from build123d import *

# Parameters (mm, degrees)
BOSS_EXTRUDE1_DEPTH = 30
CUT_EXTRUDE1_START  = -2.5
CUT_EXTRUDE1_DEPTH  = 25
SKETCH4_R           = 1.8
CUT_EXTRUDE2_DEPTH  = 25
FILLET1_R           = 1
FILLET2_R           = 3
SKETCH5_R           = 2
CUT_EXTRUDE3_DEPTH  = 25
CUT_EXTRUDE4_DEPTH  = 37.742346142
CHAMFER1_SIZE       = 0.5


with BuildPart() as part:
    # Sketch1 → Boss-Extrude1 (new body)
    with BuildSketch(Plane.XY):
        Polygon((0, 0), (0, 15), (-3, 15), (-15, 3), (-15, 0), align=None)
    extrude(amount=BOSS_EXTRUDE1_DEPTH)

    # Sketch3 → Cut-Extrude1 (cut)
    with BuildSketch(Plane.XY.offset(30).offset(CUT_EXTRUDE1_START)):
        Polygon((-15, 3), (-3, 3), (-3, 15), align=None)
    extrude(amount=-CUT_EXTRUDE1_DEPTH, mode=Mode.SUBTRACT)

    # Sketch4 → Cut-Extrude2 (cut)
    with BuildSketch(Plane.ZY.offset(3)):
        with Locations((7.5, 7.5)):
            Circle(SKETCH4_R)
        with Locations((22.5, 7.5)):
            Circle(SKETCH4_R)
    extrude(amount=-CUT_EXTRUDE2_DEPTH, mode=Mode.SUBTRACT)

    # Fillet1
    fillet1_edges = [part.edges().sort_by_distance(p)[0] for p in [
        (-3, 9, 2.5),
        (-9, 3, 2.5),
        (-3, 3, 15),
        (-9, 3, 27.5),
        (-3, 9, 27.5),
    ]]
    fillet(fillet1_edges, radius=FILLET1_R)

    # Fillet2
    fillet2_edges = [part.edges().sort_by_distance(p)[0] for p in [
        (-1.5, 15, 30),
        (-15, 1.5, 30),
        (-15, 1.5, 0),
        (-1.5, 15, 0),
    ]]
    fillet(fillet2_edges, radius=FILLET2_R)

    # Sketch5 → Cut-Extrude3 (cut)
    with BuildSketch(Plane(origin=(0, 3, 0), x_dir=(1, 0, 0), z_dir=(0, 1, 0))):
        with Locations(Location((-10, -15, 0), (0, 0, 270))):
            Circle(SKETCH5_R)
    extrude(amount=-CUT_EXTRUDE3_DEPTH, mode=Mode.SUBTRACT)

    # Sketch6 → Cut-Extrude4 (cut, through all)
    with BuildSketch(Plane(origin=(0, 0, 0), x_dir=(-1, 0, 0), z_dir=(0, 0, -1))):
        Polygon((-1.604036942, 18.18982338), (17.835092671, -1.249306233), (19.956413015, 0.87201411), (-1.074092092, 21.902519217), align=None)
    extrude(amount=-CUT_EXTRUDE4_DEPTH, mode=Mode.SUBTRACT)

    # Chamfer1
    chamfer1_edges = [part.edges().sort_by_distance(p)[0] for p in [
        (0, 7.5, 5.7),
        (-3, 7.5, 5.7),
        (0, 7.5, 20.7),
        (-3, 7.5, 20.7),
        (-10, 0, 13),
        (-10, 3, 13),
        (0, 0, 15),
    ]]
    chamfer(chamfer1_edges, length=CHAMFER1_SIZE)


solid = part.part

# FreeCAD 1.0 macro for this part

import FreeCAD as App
import Part
import Sketcher

V = App.Vector
Q = App.Units.Quantity


def edges_at(feature, points):
    """Names of the edges that pass closest to the given points."""
    edges = feature.Shape.Edges
    near = lambda p: min(range(len(edges)), key=lambda i: edges[i].distToShape(Part.Vertex(*p))[0])
    return sorted({f"Edge{near(p) + 1}" for p in points})

doc = App.newDocument("Part")
body = doc.addObject("PartDesign::Body", "Body")

sketch1 = body.newObject("Sketcher::SketchObject", "Sketch")
sketch1.AttachmentSupport = (doc.getObject("XY_Plane"), [""])
sketch1.MapMode = "FlatFace"
sketch1.addGeometry(Part.LineSegment(V(0, 0, 0), V(0, 15, 0)), False)
sketch1.addGeometry(Part.LineSegment(V(0, 15, 0), V(-3, 15, 0)), False)
sketch1.addGeometry(Part.LineSegment(V(-3, 15, 0), V(-15, 3, 0)), False)
sketch1.addGeometry(Part.LineSegment(V(-15, 3, 0), V(-15, 0, 0)), False)
sketch1.addGeometry(Part.LineSegment(V(-15, 0, 0), V(0, 0, 0)), False)
sketch1.addConstraint(Sketcher.Constraint("Coincident", 0, 2, 1, 1))
sketch1.addConstraint(Sketcher.Constraint("Coincident", 1, 2, 2, 1))
sketch1.addConstraint(Sketcher.Constraint("Coincident", 2, 2, 3, 1))
sketch1.addConstraint(Sketcher.Constraint("Coincident", 3, 2, 4, 1))
sketch1.addConstraint(Sketcher.Constraint("Coincident", 4, 2, 0, 1))
sketch1.addConstraint(Sketcher.Constraint("Vertical", 0))
sketch1.addConstraint(Sketcher.Constraint("Horizontal", 1))
sketch1.addConstraint(Sketcher.Constraint("Vertical", 3))
sketch1.addConstraint(Sketcher.Constraint("Horizontal", 4))
sketch1.addConstraint(Sketcher.Constraint("Coincident", 4, 2, -1, 1))
sketch1.addConstraint(Sketcher.Constraint("Equal", 4, 0))
sketch1.addConstraint(Sketcher.Constraint("Equal", 1, 3))
sketch1.addConstraint(Sketcher.Constraint("DistanceX", 1, 2, 1, 1, Q("3 mm")))
sketch1.addConstraint(Sketcher.Constraint("DistanceX", 4, 1, 4, 2, Q("15 mm")))
pad1 = body.newObject("PartDesign::Pad", "Pad")
pad1.Profile = sketch1
pad1.Length = 30

sketch2 = body.newObject("Sketcher::SketchObject", "Sketch001")
sketch2.AttachmentSupport = (doc.getObject("XY_Plane"), [""])
sketch2.MapMode = "FlatFace"
sketch2.AttachmentOffset = App.Placement(V(0, 0, 27.5), App.Rotation())
sketch2.addGeometry(Part.LineSegment(V(-15, 3, 0), V(-3, 3, 0)), False)
sketch2.addGeometry(Part.LineSegment(V(-3, 3, 0), V(-3, 15, 0)), False)
sketch2.addGeometry(Part.LineSegment(V(-3, 15, 0), V(-15, 3, 0)), False)
sketch2.addConstraint(Sketcher.Constraint("Coincident", 0, 2, 1, 1))
sketch2.addConstraint(Sketcher.Constraint("Coincident", 1, 2, 2, 1))
sketch2.addConstraint(Sketcher.Constraint("Coincident", 2, 2, 0, 1))
sketch2.addConstraint(Sketcher.Constraint("Horizontal", 0))
sketch2.addConstraint(Sketcher.Constraint("Vertical", 1))
sketch2.addConstraint(Sketcher.Constraint("Equal", 0, 1))
sketch2.addConstraint(Sketcher.Constraint("DistanceX", 0, 1, 0, 2, Q("12 mm")))
sketch2.addConstraint(Sketcher.Constraint("DistanceX", 0, 2, -1, 1, Q("3 mm")))
sketch2.addConstraint(Sketcher.Constraint("DistanceY", -1, 1, 0, 2, Q("3 mm")))
pocket1 = body.newObject("PartDesign::Pocket", "Pocket")
pocket1.Profile = sketch2
pocket1.Length = 25

sketch3 = body.newObject("Sketcher::SketchObject", "Sketch002")
sketch3.AttachmentSupport = (doc.getObject("YZ_Plane"), [""])
sketch3.MapMode = "FlatFace"
sketch3.AttachmentOffset = App.Placement(V(0, 0, -3), App.Rotation())
sketch3.addGeometry(Part.Circle(V(7.5, 7.5, 0), V(0, 0, 1), 1.8), False)
sketch3.addGeometry(Part.Circle(V(7.5, 22.5, 0), V(0, 0, 1), 1.8), False)
sketch3.addConstraint(Sketcher.Constraint("Equal", 0, 1))
sketch3.addConstraint(Sketcher.Constraint("Vertical", 0, 3, 1, 3))
sketch3.addConstraint(Sketcher.Constraint("Diameter", 0, Q("3.6 mm")))
sketch3.addConstraint(Sketcher.Constraint("DistanceY", 0, 3, 1, 3, Q("15 mm")))
sketch3.addConstraint(Sketcher.Constraint("DistanceX", -1, 1, 0, 3, Q("7.5 mm")))
sketch3.addConstraint(Sketcher.Constraint("DistanceY", -1, 1, 0, 3, Q("7.5 mm")))
pocket2 = body.newObject("PartDesign::Pocket", "Pocket001")
pocket2.Profile = sketch3
pocket2.Length = 25
pocket2.Reversed = True
doc.recompute()

fillet = body.newObject("PartDesign::Fillet", "Fillet")
fillet.Base = (pocket2, edges_at(pocket2, [
    (-3, 9, 2.5),
    (-9, 3, 2.5),
    (-3, 3, 15),
    (-9, 3, 27.5),
    (-3, 9, 27.5),
]))
fillet.Radius = 1
doc.recompute()

fillet2 = body.newObject("PartDesign::Fillet", "Fillet001")
fillet2.Base = (fillet, edges_at(fillet, [
    (-1.5, 15, 30),
    (-15, 1.5, 30),
    (-15, 1.5, 0),
    (-1.5, 15, 0),
]))
fillet2.Radius = 3

sketch4 = body.newObject("Sketcher::SketchObject", "Sketch003")
sketch4.AttachmentSupport = (doc.getObject("XZ_Plane"), [""])
sketch4.MapMode = "FlatFace"
sketch4.AttachmentOffset = App.Placement(V(0, 0, -3), App.Rotation())
sketch4.addGeometry(Part.Circle(V(-10, 15, 0), V(0, 0, 1), 2), False)
sketch4.addConstraint(Sketcher.Constraint("Diameter", 0, Q("4 mm")))
sketch4.addConstraint(Sketcher.Constraint("DistanceX", 0, 3, -1, 1, Q("10 mm")))
sketch4.addConstraint(Sketcher.Constraint("DistanceY", -1, 1, 0, 3, Q("15 mm")))
pocket3 = body.newObject("PartDesign::Pocket", "Pocket002")
pocket3.Profile = sketch4
pocket3.Length = 25
pocket3.Reversed = True

sketch5 = body.newObject("Sketcher::SketchObject", "Sketch004")
sketch5.AttachmentSupport = (doc.getObject("XY_Plane"), [""])
sketch5.MapMode = "FlatFace"
sketch5.addGeometry(Part.LineSegment(V(1.604037, 18.189823, 0), V(-17.835093, -1.249306, 0)), False)
sketch5.addGeometry(Part.LineSegment(V(-17.835093, -1.249306, 0), V(-19.956413, 0.872014, 0)), False)
sketch5.addGeometry(Part.LineSegment(V(-19.956413, 0.872014, 0), V(1.074092, 21.902519, 0)), False)
sketch5.addGeometry(Part.LineSegment(V(1.074092, 21.902519, 0), V(1.604037, 18.189823, 0)), False)
sketch5.addConstraint(Sketcher.Constraint("Coincident", 0, 2, 1, 1))
sketch5.addConstraint(Sketcher.Constraint("Coincident", 1, 2, 2, 1))
sketch5.addConstraint(Sketcher.Constraint("Coincident", 2, 2, 3, 1))
sketch5.addConstraint(Sketcher.Constraint("Coincident", 3, 2, 0, 1))
sketch5.addConstraint(Sketcher.Constraint("Perpendicular", 0, 1))
sketch5.addConstraint(Sketcher.Constraint("Perpendicular", 1, 2))
sketch5.addConstraint(Sketcher.Constraint("Angle", 0, Q("-135 deg")))
sketch5.addConstraint(Sketcher.Constraint("Distance", 1, Q("3 mm")))
sketch5.addConstraint(Sketcher.Constraint("Distance", 0, Q("27.491081 mm")))
sketch5.addConstraint(Sketcher.Constraint("DistanceY", -1, 1, 2, 2, Q("21.902519 mm")))
sketch5.addConstraint(Sketcher.Constraint("Distance", 2, Q("29.741626 mm")))
sketch5.addConstraint(Sketcher.Constraint("DistanceX", 0, 2, -1, 1, Q("17.835093 mm")))
pocket4 = body.newObject("PartDesign::Pocket", "Pocket003")
pocket4.Profile = sketch5
pocket4.Type = "ThroughAll"
pocket4.Reversed = True
doc.recompute()

chamfer = body.newObject("PartDesign::Chamfer", "Chamfer")
chamfer.Base = (pocket4, edges_at(pocket4, [
    (0, 7.5, 5.7),
    (-3, 7.5, 5.7),
    (0, 7.5, 20.7),
    (-3, 7.5, 20.7),
    (-10, 0, 13),
    (-10, 3, 13),
    (0, 0, 15),
]))
chamfer.Size = 0.5

doc.recompute()
